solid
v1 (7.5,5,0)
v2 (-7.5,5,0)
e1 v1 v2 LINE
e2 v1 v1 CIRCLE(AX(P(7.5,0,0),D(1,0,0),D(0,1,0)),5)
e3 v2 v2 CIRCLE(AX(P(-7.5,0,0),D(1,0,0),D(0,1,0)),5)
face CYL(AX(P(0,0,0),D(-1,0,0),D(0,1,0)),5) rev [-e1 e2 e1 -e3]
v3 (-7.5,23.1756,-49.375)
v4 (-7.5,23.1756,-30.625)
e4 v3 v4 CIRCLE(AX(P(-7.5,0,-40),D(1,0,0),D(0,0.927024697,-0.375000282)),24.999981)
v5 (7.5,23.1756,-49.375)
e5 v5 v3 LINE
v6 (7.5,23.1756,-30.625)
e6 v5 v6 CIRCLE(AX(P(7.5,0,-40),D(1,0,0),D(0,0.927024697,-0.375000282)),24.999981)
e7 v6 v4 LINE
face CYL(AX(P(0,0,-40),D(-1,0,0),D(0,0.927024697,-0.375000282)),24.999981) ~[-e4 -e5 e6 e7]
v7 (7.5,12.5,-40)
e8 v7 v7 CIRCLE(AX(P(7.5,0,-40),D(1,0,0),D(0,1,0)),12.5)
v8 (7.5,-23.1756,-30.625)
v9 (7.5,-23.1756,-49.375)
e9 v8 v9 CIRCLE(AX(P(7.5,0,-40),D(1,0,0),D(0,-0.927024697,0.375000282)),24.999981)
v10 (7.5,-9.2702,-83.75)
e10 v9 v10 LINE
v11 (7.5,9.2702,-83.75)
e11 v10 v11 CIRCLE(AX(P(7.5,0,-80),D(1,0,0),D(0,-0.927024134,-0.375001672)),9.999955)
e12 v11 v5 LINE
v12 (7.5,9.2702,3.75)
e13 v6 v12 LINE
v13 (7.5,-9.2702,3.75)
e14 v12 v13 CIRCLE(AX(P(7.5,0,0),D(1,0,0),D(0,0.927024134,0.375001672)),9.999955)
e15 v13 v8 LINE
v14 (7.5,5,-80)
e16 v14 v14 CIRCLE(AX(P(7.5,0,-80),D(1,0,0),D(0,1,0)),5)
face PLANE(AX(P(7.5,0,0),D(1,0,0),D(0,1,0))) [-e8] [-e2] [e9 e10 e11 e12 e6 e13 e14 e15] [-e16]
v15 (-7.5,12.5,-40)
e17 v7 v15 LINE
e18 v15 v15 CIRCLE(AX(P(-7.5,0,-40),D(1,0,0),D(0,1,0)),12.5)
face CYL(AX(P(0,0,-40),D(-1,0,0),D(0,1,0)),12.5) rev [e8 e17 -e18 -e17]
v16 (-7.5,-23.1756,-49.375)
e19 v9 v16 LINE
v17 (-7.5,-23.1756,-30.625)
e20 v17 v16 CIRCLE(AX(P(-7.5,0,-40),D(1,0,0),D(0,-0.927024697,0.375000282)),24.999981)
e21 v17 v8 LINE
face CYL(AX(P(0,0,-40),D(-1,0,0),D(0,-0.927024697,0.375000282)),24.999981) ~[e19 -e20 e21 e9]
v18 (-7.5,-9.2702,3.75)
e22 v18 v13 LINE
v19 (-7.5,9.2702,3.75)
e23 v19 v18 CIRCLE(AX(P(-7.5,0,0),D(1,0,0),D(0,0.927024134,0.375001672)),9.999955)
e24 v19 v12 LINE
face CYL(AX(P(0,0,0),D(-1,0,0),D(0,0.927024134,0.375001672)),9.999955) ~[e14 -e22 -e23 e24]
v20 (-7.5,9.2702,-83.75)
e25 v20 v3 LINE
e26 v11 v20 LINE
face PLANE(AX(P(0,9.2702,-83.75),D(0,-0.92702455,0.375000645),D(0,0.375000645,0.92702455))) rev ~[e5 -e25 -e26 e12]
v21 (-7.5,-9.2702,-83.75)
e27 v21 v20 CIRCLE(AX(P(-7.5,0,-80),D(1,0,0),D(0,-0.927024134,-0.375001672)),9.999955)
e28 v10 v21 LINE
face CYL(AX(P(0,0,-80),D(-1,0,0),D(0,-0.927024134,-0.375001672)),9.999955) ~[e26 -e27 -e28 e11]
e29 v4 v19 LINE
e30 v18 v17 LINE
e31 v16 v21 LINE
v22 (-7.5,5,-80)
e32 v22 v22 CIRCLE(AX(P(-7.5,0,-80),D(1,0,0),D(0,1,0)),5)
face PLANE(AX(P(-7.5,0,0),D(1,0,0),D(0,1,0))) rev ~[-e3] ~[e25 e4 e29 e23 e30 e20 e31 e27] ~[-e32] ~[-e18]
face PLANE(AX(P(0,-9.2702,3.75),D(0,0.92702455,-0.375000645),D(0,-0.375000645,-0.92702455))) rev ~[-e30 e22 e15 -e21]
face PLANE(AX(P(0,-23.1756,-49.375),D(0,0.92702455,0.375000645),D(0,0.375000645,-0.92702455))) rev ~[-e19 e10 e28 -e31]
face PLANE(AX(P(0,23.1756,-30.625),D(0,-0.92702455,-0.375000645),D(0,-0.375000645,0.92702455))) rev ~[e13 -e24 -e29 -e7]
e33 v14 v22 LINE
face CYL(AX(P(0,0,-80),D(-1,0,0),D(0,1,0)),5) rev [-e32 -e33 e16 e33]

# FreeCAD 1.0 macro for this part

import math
import FreeCAD as App
import Part
import Sketcher
Q = App.Units.Quantity

doc = App.newDocument("Part")
body = doc.addObject("PartDesign::Body", "Body")

# Sketch on YZ plane
sketch1 = body.newObject("Sketcher::SketchObject", "Sketch")
sketch1.AttachmentSupport = (doc.getObject("YZ_Plane"), [""])
sketch1.MapMode = "FlatFace"
sketch1.addGeometry(Part.LineSegment(App.Vector(23, -31, 0), App.Vector(9, 4, 0)), False)
sketch1.addGeometry(Part.ArcOfCircle(Part.Circle(App.Vector(0, 0, 0), App.Vector(0, 0, 1), 10), math.radians(22), math.radians(158)), False)
sketch1.addGeometry(Part.LineSegment(App.Vector(-9, 4, 0), App.Vector(-23, -31, 0)), False)
sketch1.addGeometry(Part.ArcOfCircle(Part.Circle(App.Vector(0, -40, 0), App.Vector(0, 0, 1), 25), math.radians(158), math.radians(202)), False)
sketch1.addGeometry(Part.LineSegment(App.Vector(-23, -49, 0), App.Vector(-9, -84, 0)), False)
sketch1.addGeometry(Part.ArcOfCircle(Part.Circle(App.Vector(0, -80, 0), App.Vector(0, 0, 1), 10), math.radians(-158), math.radians(-22)), False)
sketch1.addGeometry(Part.LineSegment(App.Vector(9, -84, 0), App.Vector(23, -49, 0)), False)
sketch1.addGeometry(Part.ArcOfCircle(Part.Circle(App.Vector(0, -40, 0), App.Vector(0, 0, 1), 25), math.radians(-22), math.radians(22)), False)
sketch1.addGeometry(Part.Circle(App.Vector(0, -80, 0), App.Vector(0, 0, 1), 5), False)
sketch1.addGeometry(Part.Circle(App.Vector(0, -40, 0), App.Vector(0, 0, 1), 12), False)
sketch1.addGeometry(Part.Circle(App.Vector(0, 0, 0), App.Vector(0, 0, 1), 5), False)
sketch1.addConstraint(Sketcher.Constraint("Tangent", 0, 2, 1, 1))
sketch1.addConstraint(Sketcher.Constraint("Tangent", 1, 2, 2, 1))
sketch1.addConstraint(Sketcher.Constraint("Tangent", 2, 2, 3, 1))
sketch1.addConstraint(Sketcher.Constraint("Tangent", 3, 2, 4, 1))
sketch1.addConstraint(Sketcher.Constraint("Tangent", 4, 2, 5, 1))
sketch1.addConstraint(Sketcher.Constraint("Tangent", 5, 2, 6, 1))
sketch1.addConstraint(Sketcher.Constraint("Tangent", 6, 2, 7, 1))
sketch1.addConstraint(Sketcher.Constraint("Tangent", 7, 2, 0, 1))
sketch1.addConstraint(Sketcher.Constraint("Coincident", 1, 3, -1, 1))
sketch1.addConstraint(Sketcher.Constraint("Coincident", 10, 3, -1, 1))
sketch1.addConstraint(Sketcher.Constraint("Coincident", 7, 3, 3, 3))
sketch1.addConstraint(Sketcher.Constraint("Coincident", 8, 3, 5, 3))
sketch1.addConstraint(Sketcher.Constraint("Coincident", 9, 3, 3, 3))
sketch1.addConstraint(Sketcher.Constraint("Equal", 1, 5))
sketch1.addConstraint(Sketcher.Constraint("Equal", 3, 7))
sketch1.addConstraint(Sketcher.Constraint("Equal", 8, 10))
sketch1.addConstraint(Sketcher.Constraint("Symmetric", 4, 2, 5, 2, -2))
sketch1.addConstraint(Sketcher.Constraint("Parallel", 0, 4))
sketch1.addConstraint(Sketcher.Constraint("Diameter", 8, Q("10 mm")))
sketch1.addConstraint(Sketcher.Constraint("Diameter", 9, Q("25 mm")))
sketch1.addConstraint(Sketcher.Constraint("Radius", 1, Q("10 mm")))
sketch1.addConstraint(Sketcher.Constraint("Radius", 3, Q("25 mm")))
sketch1.addConstraint(Sketcher.Constraint("DistanceY", 3, 3, -1, 1, Q("40 mm")))
pad1 = body.newObject("PartDesign::Pad", "Pad")
pad1.Profile = sketch1
pad1.Length = 15
pad1.Midplane = True

doc.recompute()
